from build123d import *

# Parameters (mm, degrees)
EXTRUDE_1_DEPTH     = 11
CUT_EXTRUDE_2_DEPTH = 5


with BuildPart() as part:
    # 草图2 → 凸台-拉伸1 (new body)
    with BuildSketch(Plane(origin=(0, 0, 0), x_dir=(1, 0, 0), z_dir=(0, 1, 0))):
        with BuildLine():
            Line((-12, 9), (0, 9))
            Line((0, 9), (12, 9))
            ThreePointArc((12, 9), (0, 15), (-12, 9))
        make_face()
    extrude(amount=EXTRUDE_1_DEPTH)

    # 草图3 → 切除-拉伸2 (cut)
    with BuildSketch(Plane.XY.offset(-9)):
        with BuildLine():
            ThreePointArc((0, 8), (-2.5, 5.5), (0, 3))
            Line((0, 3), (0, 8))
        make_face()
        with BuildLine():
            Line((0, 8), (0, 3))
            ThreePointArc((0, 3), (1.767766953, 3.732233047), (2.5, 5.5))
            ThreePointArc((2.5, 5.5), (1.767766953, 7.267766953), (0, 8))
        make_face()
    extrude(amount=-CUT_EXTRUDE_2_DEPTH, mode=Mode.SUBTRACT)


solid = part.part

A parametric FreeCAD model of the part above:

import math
import FreeCAD as App
import Part
import Sketcher

doc = App.newDocument("Part")
body = doc.addObject("PartDesign::Body", "Body")

sketch1 = body.newObject("Sketcher::SketchObject", "Sketch")
sketch1.AttachmentSupport = (doc.getObject("XZ_Plane"), [""])
sketch1.MapMode = "FlatFace"
sketch1.addGeometry([
    Part.LineSegment(App.Vector(-12, -9, 0), App.Vector(12, -9, 0)),
    Part.ArcOfCircle(Part.Circle(App.Vector(0, 0, 0), App.Vector(0, 0, 1), 15), math.radians(-143.130102), math.radians(-36.869898)),
], False)
sketch1.addConstraint([
    Sketcher.Constraint("Coincident", 0, 1, 1, 1),
    Sketcher.Constraint("Coincident", 1, 2, 0, 2),
    Sketcher.Constraint("Horizontal", 0),
    Sketcher.Constraint("Coincident", 1, 3, -1, 1),
    Sketcher.Constraint("Radius", 1, 15.0),
    Sketcher.Constraint("DistanceX", 0, 1, 0, 2, 24.0),
])
pad1 = body.newObject("PartDesign::Pad", "Pad")
pad1.Profile = sketch1
pad1.Length = 11
pad1.Reversed = True

sketch2 = body.newObject("Sketcher::SketchObject", "Sketch001")
sketch2.AttachmentSupport = (doc.getObject("XY_Plane"), [""])
sketch2.MapMode = "FlatFace"
sketch2.AttachmentOffset = App.Placement(App.Vector(0, 0, -9), App.Rotation())
sketch2.addGeometry([
    Part.ArcOfCircle(Part.Circle(App.Vector(0, 5.5, 0), App.Vector(0, 0, 1), 2.5), math.radians(90), math.radians(270)),
    Part.ArcOfCircle(Part.Circle(App.Vector(0, 5.5, 0), App.Vector(0, 0, 1), 2.5), math.radians(-90), math.radians(0)),
    Part.ArcOfCircle(Part.Circle(App.Vector(0, 5.5, 0), App.Vector(0, 0, 1), 2.5), math.radians(0), math.radians(90)),
], False)
sketch2.addConstraint([
    Sketcher.Constraint("Tangent", 0, 2, 1, 1),
    Sketcher.Constraint("Tangent", 1, 2, 2, 1),
    Sketcher.Constraint("Tangent", 2, 2, 0, 1),
    Sketcher.Constraint("PointOnObject", 0, 3, -2),
    Sketcher.Constraint("PointOnObject", 0, 2, -2),
    Sketcher.Constraint("PointOnObject", 2, 2, -2),
    Sketcher.Constraint("Horizontal", 2, 3, 1, 2),
    Sketcher.Constraint("Radius", 0, 2.5),
    Sketcher.Constraint("DistanceY", -1, 1, 0, 2, 3.0),
])
pocket1 = body.newObject("PartDesign::Pocket", "Pocket")
pocket1.Profile = sketch2
pocket1.Length = 5

doc.recompute()
